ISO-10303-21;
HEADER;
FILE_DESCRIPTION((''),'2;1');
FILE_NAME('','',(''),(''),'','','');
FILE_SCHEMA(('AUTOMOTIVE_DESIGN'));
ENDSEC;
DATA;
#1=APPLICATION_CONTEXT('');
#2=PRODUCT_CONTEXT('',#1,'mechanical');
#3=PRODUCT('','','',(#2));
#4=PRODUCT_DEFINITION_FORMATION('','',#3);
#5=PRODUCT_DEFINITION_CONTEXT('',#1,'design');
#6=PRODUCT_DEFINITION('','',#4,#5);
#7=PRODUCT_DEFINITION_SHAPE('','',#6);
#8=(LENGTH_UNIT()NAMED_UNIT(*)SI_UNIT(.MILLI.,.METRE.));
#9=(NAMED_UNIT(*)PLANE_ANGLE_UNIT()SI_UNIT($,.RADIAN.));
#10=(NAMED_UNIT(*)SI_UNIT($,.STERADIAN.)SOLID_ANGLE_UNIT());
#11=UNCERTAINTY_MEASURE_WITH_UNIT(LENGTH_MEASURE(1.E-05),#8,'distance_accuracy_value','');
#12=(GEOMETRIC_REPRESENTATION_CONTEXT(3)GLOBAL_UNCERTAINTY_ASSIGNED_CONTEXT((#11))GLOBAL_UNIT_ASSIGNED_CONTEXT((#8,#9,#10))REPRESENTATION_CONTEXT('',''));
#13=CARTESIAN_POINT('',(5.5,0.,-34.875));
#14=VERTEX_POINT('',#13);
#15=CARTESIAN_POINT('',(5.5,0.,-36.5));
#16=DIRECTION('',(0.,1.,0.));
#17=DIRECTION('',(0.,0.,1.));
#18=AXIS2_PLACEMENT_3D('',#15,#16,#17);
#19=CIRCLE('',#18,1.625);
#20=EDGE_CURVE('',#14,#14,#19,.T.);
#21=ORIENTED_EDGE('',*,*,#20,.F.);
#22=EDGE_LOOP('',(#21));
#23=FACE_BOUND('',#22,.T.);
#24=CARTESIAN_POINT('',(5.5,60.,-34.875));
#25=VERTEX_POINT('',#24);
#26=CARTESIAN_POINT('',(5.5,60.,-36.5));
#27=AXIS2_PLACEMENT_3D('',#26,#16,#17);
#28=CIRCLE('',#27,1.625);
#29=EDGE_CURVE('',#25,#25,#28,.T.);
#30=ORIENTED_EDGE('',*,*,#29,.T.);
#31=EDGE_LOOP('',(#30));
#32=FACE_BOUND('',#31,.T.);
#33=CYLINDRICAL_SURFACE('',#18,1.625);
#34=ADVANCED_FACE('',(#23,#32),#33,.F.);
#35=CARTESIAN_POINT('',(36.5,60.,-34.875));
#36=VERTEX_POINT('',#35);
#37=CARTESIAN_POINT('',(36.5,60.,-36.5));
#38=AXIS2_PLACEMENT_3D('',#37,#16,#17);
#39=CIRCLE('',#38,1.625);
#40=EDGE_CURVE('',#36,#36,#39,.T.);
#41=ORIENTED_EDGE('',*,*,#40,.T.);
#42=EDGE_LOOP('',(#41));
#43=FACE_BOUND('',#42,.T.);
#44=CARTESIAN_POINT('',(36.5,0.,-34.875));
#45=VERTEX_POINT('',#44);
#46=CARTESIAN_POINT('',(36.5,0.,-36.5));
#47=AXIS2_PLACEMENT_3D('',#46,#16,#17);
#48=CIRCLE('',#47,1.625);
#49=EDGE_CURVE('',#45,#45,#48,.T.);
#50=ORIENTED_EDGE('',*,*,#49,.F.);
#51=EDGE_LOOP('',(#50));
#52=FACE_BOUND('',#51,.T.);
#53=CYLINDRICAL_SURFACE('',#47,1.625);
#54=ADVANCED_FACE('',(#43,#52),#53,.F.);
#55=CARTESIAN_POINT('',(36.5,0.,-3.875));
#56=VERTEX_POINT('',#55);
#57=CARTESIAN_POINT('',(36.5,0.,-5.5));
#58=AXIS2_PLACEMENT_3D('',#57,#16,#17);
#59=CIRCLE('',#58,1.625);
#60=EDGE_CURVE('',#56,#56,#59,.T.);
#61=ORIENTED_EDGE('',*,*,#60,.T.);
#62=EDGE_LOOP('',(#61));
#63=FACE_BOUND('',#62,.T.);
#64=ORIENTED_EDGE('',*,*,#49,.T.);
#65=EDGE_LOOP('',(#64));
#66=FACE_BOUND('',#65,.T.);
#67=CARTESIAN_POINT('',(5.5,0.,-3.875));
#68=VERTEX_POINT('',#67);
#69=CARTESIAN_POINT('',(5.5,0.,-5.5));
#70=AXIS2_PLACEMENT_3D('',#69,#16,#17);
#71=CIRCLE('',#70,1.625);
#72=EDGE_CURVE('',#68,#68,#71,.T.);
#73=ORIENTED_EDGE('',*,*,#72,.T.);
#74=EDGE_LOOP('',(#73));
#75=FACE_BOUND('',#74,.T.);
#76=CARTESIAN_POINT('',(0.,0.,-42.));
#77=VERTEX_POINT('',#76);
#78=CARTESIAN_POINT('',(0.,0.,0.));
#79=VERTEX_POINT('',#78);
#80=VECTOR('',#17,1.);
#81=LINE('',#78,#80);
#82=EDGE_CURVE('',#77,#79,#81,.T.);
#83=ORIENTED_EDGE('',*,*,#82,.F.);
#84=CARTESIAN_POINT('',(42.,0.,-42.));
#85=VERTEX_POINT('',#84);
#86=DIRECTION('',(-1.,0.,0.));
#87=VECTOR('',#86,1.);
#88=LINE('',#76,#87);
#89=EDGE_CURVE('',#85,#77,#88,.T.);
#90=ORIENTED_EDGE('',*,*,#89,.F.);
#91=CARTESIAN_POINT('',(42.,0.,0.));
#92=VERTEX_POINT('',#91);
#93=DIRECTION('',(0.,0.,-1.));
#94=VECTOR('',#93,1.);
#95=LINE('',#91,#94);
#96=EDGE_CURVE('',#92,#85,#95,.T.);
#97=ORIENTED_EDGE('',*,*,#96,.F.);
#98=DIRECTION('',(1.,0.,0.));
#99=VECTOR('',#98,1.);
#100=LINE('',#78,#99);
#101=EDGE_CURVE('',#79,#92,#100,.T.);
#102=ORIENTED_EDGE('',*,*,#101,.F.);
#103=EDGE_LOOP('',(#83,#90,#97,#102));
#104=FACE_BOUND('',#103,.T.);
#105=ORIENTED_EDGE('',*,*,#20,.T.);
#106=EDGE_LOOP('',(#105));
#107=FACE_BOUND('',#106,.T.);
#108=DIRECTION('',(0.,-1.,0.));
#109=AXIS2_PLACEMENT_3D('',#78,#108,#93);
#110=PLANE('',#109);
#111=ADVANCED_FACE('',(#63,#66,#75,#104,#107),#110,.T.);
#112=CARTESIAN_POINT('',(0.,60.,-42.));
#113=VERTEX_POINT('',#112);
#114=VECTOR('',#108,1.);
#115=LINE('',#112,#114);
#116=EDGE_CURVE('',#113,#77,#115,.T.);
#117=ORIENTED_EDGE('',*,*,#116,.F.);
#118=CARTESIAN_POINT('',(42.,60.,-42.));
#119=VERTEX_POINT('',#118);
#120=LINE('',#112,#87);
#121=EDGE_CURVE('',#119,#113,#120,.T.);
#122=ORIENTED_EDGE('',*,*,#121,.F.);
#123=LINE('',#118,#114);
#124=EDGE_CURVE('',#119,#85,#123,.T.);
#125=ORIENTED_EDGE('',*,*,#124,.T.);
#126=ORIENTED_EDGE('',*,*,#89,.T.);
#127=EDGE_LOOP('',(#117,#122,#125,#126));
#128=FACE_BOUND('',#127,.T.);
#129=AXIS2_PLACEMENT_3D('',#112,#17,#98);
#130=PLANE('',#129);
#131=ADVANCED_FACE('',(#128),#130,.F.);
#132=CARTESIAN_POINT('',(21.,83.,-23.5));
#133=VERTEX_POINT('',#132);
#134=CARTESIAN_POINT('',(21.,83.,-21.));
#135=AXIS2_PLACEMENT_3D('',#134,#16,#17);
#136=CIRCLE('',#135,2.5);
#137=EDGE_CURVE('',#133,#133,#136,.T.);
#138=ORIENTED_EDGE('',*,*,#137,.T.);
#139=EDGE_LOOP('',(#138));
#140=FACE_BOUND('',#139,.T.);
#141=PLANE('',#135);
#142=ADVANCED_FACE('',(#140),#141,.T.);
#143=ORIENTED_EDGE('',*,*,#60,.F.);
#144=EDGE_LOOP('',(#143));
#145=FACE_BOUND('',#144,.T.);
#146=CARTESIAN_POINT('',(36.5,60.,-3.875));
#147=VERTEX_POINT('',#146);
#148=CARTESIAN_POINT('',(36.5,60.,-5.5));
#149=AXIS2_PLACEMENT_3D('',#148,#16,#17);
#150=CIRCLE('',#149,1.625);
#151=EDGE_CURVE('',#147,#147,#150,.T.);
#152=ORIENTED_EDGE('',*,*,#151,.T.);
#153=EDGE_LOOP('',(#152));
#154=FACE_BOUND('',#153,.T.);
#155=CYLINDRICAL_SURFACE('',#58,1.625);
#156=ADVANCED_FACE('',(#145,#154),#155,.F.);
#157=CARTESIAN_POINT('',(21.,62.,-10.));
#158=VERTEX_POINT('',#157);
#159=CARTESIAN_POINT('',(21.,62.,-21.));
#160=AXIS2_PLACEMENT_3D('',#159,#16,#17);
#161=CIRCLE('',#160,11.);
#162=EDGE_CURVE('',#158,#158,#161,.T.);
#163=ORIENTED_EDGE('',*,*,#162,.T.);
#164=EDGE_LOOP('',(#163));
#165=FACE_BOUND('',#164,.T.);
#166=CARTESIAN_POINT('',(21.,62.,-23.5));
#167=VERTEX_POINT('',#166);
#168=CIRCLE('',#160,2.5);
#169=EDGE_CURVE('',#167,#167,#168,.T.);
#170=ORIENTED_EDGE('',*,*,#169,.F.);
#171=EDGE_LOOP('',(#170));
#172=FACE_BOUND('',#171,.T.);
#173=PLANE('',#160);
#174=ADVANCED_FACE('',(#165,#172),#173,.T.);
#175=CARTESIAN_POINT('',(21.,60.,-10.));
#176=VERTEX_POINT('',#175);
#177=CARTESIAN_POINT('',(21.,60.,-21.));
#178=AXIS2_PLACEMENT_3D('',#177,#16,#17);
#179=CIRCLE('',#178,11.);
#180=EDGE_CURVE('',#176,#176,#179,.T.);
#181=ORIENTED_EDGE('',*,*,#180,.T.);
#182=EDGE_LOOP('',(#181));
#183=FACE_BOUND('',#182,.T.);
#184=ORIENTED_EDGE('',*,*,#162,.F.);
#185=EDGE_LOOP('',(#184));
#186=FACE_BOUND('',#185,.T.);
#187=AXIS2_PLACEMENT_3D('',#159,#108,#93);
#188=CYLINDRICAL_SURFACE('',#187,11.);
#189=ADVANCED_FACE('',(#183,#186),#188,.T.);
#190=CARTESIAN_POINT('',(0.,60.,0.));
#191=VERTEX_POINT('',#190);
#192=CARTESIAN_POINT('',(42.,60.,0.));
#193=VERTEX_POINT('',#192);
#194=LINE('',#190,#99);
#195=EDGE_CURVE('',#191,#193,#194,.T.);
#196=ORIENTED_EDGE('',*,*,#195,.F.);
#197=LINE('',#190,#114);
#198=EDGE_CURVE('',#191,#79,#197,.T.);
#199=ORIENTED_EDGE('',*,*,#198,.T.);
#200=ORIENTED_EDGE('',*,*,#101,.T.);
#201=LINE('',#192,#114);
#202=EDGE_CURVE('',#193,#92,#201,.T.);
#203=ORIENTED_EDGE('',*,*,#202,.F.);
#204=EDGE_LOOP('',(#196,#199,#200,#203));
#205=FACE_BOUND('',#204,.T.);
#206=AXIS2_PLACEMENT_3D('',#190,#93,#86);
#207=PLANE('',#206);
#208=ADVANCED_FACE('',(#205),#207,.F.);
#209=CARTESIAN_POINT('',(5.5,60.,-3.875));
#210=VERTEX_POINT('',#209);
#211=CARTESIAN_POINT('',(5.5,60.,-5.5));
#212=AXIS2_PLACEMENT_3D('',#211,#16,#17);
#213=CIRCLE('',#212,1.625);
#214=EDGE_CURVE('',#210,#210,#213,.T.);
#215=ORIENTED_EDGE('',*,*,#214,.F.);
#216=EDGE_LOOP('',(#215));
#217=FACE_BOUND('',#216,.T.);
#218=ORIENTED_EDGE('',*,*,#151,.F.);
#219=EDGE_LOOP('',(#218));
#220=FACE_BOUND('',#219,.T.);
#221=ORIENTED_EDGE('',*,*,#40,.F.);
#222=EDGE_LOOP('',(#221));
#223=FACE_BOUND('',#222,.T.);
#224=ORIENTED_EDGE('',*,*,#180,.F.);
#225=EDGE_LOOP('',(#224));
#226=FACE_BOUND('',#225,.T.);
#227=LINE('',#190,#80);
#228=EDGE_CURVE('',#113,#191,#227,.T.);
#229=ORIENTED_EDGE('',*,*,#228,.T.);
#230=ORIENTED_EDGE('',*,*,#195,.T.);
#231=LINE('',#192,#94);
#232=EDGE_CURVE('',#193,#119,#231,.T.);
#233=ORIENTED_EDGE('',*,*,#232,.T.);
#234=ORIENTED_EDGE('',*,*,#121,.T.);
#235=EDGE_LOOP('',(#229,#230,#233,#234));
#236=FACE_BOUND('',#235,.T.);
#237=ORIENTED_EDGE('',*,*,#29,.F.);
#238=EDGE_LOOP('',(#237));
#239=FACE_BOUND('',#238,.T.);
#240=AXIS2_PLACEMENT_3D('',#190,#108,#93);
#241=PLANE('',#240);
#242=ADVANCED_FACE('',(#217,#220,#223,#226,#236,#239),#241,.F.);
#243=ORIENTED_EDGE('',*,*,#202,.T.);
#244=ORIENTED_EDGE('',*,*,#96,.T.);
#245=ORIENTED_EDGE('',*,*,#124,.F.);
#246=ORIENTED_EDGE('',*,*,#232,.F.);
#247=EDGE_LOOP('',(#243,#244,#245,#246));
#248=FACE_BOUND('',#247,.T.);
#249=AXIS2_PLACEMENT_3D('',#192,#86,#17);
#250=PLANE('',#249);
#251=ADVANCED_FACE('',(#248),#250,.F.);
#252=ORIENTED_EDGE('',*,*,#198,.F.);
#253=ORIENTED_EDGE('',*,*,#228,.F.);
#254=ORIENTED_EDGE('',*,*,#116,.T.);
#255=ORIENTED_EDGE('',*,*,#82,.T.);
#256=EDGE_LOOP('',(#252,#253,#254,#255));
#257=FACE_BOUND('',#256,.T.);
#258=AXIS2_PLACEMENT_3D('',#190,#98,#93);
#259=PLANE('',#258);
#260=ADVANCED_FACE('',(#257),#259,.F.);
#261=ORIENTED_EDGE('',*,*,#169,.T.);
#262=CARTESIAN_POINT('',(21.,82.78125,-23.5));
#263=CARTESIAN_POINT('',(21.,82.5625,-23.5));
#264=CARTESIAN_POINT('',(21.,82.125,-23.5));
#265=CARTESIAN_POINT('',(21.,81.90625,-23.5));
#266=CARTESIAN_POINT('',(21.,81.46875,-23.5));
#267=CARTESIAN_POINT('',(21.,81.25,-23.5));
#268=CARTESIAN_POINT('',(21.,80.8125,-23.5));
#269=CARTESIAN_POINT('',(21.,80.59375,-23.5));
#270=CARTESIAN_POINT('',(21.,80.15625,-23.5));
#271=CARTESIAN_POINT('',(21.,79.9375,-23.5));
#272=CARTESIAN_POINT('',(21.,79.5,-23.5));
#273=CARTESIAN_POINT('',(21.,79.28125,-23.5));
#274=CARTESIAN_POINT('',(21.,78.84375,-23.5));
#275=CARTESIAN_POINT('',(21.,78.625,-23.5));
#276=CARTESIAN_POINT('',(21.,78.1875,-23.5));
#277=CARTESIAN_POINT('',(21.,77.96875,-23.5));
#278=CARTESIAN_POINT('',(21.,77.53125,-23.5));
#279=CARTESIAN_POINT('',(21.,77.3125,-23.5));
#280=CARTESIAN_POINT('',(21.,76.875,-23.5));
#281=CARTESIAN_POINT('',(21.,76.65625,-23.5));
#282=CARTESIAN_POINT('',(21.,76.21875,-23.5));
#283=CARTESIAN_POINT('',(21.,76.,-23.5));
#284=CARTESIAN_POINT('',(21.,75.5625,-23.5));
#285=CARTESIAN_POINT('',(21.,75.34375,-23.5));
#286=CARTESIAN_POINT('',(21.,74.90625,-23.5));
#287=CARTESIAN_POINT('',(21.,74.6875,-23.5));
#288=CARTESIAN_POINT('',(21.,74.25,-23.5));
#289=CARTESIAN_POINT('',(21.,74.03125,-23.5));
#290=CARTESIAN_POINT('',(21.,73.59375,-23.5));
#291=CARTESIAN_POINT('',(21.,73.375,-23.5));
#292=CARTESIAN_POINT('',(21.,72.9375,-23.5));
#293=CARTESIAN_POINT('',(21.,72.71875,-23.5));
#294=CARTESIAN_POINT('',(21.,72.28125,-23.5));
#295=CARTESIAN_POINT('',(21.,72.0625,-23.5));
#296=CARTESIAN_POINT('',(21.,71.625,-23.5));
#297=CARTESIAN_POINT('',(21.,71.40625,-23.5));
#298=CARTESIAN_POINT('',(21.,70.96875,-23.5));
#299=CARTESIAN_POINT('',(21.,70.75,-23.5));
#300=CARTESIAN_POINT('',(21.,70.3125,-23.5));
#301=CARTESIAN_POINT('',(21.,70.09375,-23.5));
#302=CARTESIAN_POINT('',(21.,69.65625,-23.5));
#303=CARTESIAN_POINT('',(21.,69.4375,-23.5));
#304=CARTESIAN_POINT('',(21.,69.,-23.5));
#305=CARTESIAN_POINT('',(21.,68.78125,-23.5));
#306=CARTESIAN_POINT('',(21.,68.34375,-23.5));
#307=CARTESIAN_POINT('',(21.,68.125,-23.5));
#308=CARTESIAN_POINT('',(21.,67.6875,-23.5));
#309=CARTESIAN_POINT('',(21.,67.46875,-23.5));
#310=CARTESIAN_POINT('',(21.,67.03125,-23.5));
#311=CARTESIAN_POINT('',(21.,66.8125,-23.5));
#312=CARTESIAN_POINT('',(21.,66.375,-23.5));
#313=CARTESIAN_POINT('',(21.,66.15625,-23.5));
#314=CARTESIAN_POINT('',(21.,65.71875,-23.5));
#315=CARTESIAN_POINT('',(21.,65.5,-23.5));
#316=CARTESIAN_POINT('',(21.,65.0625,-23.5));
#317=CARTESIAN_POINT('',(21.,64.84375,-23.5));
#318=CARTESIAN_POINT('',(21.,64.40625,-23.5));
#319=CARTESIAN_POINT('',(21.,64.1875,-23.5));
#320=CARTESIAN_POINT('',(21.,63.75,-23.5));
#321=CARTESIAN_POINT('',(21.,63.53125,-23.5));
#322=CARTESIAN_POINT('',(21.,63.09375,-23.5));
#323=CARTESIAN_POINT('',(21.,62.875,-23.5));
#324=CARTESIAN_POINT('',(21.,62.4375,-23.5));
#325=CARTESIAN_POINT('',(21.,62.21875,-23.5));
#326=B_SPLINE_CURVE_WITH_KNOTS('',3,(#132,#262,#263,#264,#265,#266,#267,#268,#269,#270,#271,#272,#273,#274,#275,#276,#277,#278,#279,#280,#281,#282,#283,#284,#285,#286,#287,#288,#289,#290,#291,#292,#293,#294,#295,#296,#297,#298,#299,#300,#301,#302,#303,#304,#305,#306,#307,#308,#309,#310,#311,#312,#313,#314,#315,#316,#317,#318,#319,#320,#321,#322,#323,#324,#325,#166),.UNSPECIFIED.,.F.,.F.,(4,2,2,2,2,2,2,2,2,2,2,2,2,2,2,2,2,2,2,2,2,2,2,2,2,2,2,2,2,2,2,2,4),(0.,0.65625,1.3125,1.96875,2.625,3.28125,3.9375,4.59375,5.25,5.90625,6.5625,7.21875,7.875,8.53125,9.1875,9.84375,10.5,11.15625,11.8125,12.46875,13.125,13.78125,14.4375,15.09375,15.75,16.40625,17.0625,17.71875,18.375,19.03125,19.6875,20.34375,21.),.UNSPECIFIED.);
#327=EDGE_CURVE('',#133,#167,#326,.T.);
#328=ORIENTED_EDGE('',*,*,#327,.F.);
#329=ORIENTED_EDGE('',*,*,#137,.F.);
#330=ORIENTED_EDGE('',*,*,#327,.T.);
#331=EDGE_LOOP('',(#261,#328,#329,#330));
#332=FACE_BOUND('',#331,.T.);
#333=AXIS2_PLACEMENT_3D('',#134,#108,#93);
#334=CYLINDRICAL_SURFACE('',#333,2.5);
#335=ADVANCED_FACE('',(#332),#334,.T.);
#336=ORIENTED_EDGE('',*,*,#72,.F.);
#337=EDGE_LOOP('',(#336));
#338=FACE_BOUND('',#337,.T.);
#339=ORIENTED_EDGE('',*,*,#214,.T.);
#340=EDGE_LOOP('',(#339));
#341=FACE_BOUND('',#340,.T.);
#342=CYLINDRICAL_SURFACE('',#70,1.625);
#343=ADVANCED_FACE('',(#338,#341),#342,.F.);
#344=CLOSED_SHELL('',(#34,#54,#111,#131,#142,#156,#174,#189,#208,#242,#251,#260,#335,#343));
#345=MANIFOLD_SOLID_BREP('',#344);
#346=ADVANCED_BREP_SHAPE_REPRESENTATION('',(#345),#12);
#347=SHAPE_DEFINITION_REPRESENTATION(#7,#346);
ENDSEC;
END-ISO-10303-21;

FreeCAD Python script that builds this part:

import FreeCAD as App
import Part
import Sketcher
from FreeCAD import Vector
Q = App.Units.Quantity

doc = App.newDocument("Part")
body = doc.addObject("PartDesign::Body", "Body")

# Sketch on XZ plane
sketch1 = body.newObject("Sketcher::SketchObject", "Sketch")
sketch1.AttachmentSupport = (doc.getObject("XZ_Plane"), [""])
sketch1.MapMode = "FlatFace"
sketch1.addGeometry(Part.LineSegment(Vector(0, -42, 0), Vector(0, 0, 0)), False)
sketch1.addGeometry(Part.LineSegment(Vector(0, 0, 0), Vector(42, 0, 0)), False)
sketch1.addGeometry(Part.LineSegment(Vector(42, 0, 0), Vector(42, -42, 0)), False)
sketch1.addGeometry(Part.LineSegment(Vector(42, -42, 0), Vector(0, -42, 0)), False)
sketch1.addConstraint(Sketcher.Constraint("Coincident", 0, 2, 1, 1))
sketch1.addConstraint(Sketcher.Constraint("Coincident", 1, 2, 2, 1))
sketch1.addConstraint(Sketcher.Constraint("Coincident", 2, 2, 3, 1))
sketch1.addConstraint(Sketcher.Constraint("Coincident", 3, 2, 0, 1))
sketch1.addConstraint(Sketcher.Constraint("Vertical", 0))
sketch1.addConstraint(Sketcher.Constraint("Horizontal", 1))
sketch1.addConstraint(Sketcher.Constraint("Vertical", 2))
sketch1.addConstraint(Sketcher.Constraint("Horizontal", 3))
sketch1.addConstraint(Sketcher.Constraint("Coincident", 0, 2, -1, 1))
sketch1.addConstraint(Sketcher.Constraint("Equal", 3, 0))
sketch1.addConstraint(Sketcher.Constraint("DistanceX", 1, 1, 1, 2, Q("42 mm")))
pad1 = body.newObject("PartDesign::Pad", "Pad")
pad1.Profile = sketch1
pad1.Length = 60
pad1.Reversed = True

# Sketch on XZ plane
sketch2 = body.newObject("Sketcher::SketchObject", "Sketch001")
sketch2.AttachmentSupport = (doc.getObject("XZ_Plane"), [""])
sketch2.MapMode = "FlatFace"
sketch2.AttachmentOffset = App.Placement(Vector(0, 0, -60), App.Rotation())
sketch2.addGeometry(Part.Circle(Vector(21, -21, 0), Vector(0, 0, 1), 11), False)
sketch2.addConstraint(Sketcher.Constraint("Diameter", 0, Q("22 mm")))
sketch2.addConstraint(Sketcher.Constraint("DistanceX", -1, 1, 0, 3, Q("21 mm")))
sketch2.addConstraint(Sketcher.Constraint("DistanceY", 0, 3, -1, 1, Q("21 mm")))
pad2 = body.newObject("PartDesign::Pad", "Pad001")
pad2.Profile = sketch2
pad2.Length = 2
pad2.Reversed = True

# Sketch on XZ plane
sketch3 = body.newObject("Sketcher::SketchObject", "Sketch002")
sketch3.AttachmentSupport = (doc.getObject("XZ_Plane"), [""])
sketch3.MapMode = "FlatFace"
sketch3.AttachmentOffset = App.Placement(Vector(0, 0, -62), App.Rotation())
sketch3.addGeometry(Part.Circle(Vector(21, -21, 0), Vector(0, 0, 1), 2.5), False)
sketch3.addConstraint(Sketcher.Constraint("Diameter", 0, Q("5 mm")))
sketch3.addConstraint(Sketcher.Constraint("DistanceX", -1, 1, 0, 3, Q("21 mm")))
sketch3.addConstraint(Sketcher.Constraint("DistanceY", 0, 3, -1, 1, Q("21 mm")))
pad3 = body.newObject("PartDesign::Pad", "Pad002")
pad3.Profile = sketch3
pad3.Length = 21
pad3.Reversed = True

# Sketch on XZ plane
sketch4 = body.newObject("Sketcher::SketchObject", "Sketch003")
sketch4.AttachmentSupport = (doc.getObject("XZ_Plane"), [""])
sketch4.MapMode = "FlatFace"
sketch4.AttachmentOffset = App.Placement(Vector(0, 0, -60), App.Rotation())
sketch4.addGeometry(Part.Circle(Vector(5.5, -36.5, 0), Vector(0, 0, 1), 1.625), False)
sketch4.addGeometry(Part.Circle(Vector(36.5, -36.5, 0), Vector(0, 0, 1), 1.625), False)
sketch4.addGeometry(Part.Circle(Vector(36.5, -5.5, 0), Vector(0, 0, 1), 1.625), False)
sketch4.addGeometry(Part.Circle(Vector(5.5, -5.5, 0), Vector(0, 0, 1), 1.625), False)
sketch4.addConstraint(Sketcher.Constraint("Equal", 0, 1))
sketch4.addConstraint(Sketcher.Constraint("Equal", 1, 2))
sketch4.addConstraint(Sketcher.Constraint("Equal", 2, 3))
sketch4.addConstraint(Sketcher.Constraint("Horizontal", 0, 3, 1, 3))
sketch4.addConstraint(Sketcher.Constraint("Horizontal", 2, 3, 3, 3))
sketch4.addConstraint(Sketcher.Constraint("Vertical", 1, 3, 2, 3))
sketch4.addConstraint(Sketcher.Constraint("Vertical", 0, 3, 3, 3))
sketch4.addConstraint(Sketcher.Constraint("Diameter", 0, Q("3.25 mm")))
sketch4.addConstraint(Sketcher.Constraint("DistanceX", 0, 3, 1, 3, Q("31 mm")))
sketch4.addConstraint(Sketcher.Constraint("DistanceY", 1, 3, 2, 3, Q("31 mm")))
sketch4.addConstraint(Sketcher.Constraint("DistanceX", -1, 1, 0, 3, Q("5.5 mm")))
sketch4.addConstraint(Sketcher.Constraint("DistanceY", 0, 3, -1, 1, Q("36.5 mm")))
pocket1 = body.newObject("PartDesign::Pocket", "Pocket")
pocket1.Profile = sketch4
pocket1.Type = "ThroughAll"
pocket1.Reversed = True

doc.recompute()
